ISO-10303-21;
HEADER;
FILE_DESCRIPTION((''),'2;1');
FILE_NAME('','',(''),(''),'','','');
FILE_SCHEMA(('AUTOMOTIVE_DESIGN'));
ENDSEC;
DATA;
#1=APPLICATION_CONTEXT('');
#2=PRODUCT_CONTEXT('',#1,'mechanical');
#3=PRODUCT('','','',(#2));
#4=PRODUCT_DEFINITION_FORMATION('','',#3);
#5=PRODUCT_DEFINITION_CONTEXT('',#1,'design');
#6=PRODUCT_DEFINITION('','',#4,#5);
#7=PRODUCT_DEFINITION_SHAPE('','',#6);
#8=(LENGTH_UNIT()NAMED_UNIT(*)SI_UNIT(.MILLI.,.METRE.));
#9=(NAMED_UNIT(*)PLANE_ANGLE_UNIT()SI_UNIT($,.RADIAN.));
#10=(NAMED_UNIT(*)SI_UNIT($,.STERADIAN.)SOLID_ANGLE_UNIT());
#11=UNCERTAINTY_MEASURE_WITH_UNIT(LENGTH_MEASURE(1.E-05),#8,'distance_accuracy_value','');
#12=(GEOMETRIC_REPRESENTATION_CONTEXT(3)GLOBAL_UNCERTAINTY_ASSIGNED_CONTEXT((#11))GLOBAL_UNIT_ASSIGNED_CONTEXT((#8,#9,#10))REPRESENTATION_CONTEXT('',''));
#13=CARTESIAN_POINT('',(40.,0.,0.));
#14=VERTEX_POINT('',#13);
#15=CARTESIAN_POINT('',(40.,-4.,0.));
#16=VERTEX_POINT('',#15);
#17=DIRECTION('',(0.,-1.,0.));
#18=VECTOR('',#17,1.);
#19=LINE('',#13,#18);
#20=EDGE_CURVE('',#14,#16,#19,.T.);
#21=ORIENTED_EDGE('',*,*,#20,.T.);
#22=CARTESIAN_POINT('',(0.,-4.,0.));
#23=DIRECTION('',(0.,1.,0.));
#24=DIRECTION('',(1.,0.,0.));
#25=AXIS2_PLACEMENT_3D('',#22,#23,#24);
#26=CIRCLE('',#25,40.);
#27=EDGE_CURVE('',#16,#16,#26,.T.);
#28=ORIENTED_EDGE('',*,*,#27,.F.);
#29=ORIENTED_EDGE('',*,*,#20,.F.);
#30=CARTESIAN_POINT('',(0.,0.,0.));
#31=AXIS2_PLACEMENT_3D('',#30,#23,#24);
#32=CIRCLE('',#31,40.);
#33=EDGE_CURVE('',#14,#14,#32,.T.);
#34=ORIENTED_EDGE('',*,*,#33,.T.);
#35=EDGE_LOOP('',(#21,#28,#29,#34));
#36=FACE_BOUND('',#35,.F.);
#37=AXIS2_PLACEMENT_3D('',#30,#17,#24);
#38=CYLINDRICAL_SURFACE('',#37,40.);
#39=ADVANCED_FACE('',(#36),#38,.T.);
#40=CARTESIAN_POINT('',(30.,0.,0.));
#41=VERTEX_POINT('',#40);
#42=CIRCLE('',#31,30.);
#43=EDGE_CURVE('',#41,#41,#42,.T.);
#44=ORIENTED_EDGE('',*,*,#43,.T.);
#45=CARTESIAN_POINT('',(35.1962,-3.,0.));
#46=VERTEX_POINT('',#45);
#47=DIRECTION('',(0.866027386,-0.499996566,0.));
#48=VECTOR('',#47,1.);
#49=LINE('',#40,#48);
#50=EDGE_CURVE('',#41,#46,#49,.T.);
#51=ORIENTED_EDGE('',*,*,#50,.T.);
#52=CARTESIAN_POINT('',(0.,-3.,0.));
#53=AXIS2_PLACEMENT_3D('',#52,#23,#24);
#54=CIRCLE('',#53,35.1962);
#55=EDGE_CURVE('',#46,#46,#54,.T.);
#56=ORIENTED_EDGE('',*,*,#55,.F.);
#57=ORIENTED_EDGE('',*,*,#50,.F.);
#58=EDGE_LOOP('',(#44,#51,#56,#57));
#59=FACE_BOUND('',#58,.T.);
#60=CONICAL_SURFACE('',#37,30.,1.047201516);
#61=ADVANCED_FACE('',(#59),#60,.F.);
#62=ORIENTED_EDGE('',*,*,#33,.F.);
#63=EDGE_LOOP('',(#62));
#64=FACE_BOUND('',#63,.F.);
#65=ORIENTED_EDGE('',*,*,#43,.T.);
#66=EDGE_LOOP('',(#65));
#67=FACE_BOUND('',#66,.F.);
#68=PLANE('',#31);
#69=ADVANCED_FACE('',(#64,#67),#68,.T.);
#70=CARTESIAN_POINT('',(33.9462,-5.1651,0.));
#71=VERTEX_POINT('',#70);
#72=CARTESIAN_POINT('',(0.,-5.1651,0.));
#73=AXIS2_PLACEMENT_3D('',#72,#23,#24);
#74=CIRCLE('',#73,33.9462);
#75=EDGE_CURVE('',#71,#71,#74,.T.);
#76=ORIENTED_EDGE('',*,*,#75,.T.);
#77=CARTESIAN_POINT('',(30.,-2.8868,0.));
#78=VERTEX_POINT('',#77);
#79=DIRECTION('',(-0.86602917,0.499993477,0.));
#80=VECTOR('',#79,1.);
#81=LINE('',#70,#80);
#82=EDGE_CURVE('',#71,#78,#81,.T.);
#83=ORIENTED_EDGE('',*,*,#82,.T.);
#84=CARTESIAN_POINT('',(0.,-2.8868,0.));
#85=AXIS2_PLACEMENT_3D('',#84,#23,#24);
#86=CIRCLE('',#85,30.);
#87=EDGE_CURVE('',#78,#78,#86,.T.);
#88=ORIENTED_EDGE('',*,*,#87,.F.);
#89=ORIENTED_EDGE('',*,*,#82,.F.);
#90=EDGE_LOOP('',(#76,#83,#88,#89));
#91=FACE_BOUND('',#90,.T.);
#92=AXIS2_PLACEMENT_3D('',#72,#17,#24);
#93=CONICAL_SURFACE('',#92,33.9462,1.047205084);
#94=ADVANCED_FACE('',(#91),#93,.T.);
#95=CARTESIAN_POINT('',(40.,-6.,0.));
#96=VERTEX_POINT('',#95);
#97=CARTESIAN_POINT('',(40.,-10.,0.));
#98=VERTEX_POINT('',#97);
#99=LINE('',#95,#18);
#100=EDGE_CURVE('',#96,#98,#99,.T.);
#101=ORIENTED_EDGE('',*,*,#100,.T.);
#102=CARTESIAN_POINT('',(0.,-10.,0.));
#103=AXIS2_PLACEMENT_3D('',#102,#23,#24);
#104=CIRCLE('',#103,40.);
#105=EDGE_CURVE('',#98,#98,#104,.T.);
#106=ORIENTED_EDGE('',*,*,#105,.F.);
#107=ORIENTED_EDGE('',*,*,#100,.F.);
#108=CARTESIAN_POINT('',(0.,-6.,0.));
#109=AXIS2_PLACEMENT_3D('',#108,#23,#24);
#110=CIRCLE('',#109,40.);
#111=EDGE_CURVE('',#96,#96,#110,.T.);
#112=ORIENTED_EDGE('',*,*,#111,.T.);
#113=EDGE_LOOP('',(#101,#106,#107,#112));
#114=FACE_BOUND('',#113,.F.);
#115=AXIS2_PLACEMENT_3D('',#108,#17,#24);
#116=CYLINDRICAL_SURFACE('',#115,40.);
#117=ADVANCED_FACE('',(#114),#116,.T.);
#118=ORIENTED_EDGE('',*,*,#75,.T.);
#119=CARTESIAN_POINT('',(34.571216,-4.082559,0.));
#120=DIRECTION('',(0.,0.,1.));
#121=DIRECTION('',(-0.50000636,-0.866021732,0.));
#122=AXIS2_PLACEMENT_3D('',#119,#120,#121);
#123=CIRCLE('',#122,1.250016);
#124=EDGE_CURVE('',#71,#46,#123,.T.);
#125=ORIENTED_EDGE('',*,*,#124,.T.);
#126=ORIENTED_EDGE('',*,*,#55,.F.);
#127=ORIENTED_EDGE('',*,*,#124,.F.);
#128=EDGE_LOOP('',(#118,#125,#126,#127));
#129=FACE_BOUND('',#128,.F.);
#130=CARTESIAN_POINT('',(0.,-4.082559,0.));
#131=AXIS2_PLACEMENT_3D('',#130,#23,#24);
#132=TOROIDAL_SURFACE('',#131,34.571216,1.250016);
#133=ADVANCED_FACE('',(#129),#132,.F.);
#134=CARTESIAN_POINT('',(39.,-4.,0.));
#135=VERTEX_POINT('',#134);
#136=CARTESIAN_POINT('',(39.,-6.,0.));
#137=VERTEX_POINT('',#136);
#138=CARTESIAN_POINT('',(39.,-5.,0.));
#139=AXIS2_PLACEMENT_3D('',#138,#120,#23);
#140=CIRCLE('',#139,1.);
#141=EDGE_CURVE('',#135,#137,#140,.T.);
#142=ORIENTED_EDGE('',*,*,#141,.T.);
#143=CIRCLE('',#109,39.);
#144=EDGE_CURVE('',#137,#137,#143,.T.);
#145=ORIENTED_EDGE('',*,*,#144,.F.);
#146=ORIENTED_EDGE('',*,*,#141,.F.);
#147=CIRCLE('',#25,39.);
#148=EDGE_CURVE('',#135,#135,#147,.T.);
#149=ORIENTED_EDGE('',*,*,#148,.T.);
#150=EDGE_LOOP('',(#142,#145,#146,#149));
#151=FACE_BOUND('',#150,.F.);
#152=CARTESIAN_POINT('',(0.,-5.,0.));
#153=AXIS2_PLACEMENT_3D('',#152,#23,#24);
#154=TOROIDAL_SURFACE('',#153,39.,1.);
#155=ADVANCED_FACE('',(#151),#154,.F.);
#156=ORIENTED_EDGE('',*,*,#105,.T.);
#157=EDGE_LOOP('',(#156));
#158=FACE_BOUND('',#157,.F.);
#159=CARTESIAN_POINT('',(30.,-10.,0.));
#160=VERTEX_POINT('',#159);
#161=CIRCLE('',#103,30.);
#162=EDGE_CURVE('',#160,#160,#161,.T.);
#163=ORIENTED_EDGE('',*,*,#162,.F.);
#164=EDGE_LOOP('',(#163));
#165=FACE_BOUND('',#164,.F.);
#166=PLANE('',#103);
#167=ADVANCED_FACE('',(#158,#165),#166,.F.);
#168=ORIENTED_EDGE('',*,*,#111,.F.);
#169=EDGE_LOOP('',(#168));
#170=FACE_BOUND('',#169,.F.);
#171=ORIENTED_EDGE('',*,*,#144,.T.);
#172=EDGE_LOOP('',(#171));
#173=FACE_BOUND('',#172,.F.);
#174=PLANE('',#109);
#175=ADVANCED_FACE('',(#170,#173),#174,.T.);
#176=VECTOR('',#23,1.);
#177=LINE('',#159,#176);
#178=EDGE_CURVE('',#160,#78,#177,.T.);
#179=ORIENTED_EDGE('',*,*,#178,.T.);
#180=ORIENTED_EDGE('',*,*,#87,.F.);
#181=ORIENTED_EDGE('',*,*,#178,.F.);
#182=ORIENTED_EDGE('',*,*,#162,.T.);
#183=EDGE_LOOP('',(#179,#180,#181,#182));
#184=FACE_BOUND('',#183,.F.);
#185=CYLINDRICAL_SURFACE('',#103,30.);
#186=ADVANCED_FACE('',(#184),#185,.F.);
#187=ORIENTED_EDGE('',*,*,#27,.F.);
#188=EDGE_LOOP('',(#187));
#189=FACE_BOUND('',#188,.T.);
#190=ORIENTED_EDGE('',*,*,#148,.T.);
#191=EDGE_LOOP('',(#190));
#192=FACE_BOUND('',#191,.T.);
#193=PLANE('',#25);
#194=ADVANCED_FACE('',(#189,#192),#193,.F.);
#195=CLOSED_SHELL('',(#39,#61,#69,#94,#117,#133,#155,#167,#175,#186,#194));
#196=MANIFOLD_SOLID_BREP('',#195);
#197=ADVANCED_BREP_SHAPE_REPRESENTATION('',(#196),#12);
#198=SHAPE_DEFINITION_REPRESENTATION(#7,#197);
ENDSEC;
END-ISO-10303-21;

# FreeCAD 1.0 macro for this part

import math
import FreeCAD as App
import Part
import Sketcher
Q = App.Units.Quantity

doc = App.newDocument("Part")
body = doc.addObject("PartDesign::Body", "Body")

# Sketch on XY plane
sketch1 = body.newObject("Sketcher::SketchObject", "Sketch")
sketch1.AttachmentSupport = (doc.getObject("XY_Plane"), [""])
sketch1.MapMode = "FlatFace"
sketch1.addGeometry(Part.LineSegment(App.Vector(40, 0, 0), App.Vector(30, 0, 0)), False)
sketch1.addGeometry(Part.LineSegment(App.Vector(30, 0, 0), App.Vector(35.2, -3, 0)), False)
sketch1.addGeometry(Part.ArcOfCircle(Part.Circle(App.Vector(34.6, -4.1, 0), App.Vector(0, 0, 1), 1.3), math.radians(-120), math.radians(60)), False)
sketch1.addGeometry(Part.LineSegment(App.Vector(33.9, -5.2, 0), App.Vector(30, -2.9, 0)), False)
sketch1.addGeometry(Part.LineSegment(App.Vector(30, -2.9, 0), App.Vector(30, -10, 0)), False)
sketch1.addGeometry(Part.LineSegment(App.Vector(30, -10, 0), App.Vector(40, -10, 0)), False)
sketch1.addGeometry(Part.LineSegment(App.Vector(40, -10, 0), App.Vector(40, -6, 0)), False)
sketch1.addGeometry(Part.LineSegment(App.Vector(40, -6, 0), App.Vector(39, -6, 0)), False)
sketch1.addGeometry(Part.ArcOfCircle(Part.Circle(App.Vector(39, -5, 0), App.Vector(0, 0, 1), 1), math.radians(90), math.radians(270)), False)
sketch1.addGeometry(Part.LineSegment(App.Vector(39, -4, 0), App.Vector(40, -4, 0)), False)
sketch1.addGeometry(Part.LineSegment(App.Vector(40, -4, 0), App.Vector(40, 0, 0)), False)
sketch1.addConstraint(Sketcher.Constraint("Coincident", 0, 2, 1, 1))
sketch1.addConstraint(Sketcher.Constraint("Tangent", 1, 2, 2, 2))
sketch1.addConstraint(Sketcher.Constraint("Tangent", 2, 1, 3, 1))
sketch1.addConstraint(Sketcher.Constraint("Coincident", 3, 2, 4, 1))
sketch1.addConstraint(Sketcher.Constraint("Coincident", 4, 2, 5, 1))
sketch1.addConstraint(Sketcher.Constraint("Coincident", 5, 2, 6, 1))
sketch1.addConstraint(Sketcher.Constraint("Coincident", 6, 2, 7, 1))
sketch1.addConstraint(Sketcher.Constraint("Tangent", 7, 2, 8, 2))
sketch1.addConstraint(Sketcher.Constraint("Tangent", 8, 1, 9, 1))
sketch1.addConstraint(Sketcher.Constraint("Coincident", 9, 2, 10, 1))
sketch1.addConstraint(Sketcher.Constraint("Coincident", 10, 2, 0, 1))
sketch1.addConstraint(Sketcher.Constraint("Horizontal", 0))
sketch1.addConstraint(Sketcher.Constraint("Vertical", 4))
sketch1.addConstraint(Sketcher.Constraint("Horizontal", 5))
sketch1.addConstraint(Sketcher.Constraint("Vertical", 6))
sketch1.addConstraint(Sketcher.Constraint("Horizontal", 7))
sketch1.addConstraint(Sketcher.Constraint("Horizontal", 9))
sketch1.addConstraint(Sketcher.Constraint("Vertical", 10))
sketch1.addConstraint(Sketcher.Constraint("PointOnObject", 0, 2, -1))
sketch1.addConstraint(Sketcher.Constraint("Parallel", 1, 3))
sketch1.addConstraint(Sketcher.Constraint("Vertical", 0, 2, 3, 2))
sketch1.addConstraint(Sketcher.Constraint("Vertical", 6, 2, 9, 2))
sketch1.addConstraint(Sketcher.Constraint("Equal", 6, 10))
sketch1.addConstraint(Sketcher.Constraint("Radius", 8, 1.0))
sketch1.addConstraint(Sketcher.Constraint("DistanceX", 0, 2, 0, 1, 10.0))
sketch1.addConstraint(Sketcher.Constraint("Angle", 1, Q("-29.9998 deg")))
sketch1.addConstraint(Sketcher.Constraint("Distance", 1, 6.0))
sketch1.addConstraint(Sketcher.Constraint("DistanceX", -1, 1, 0, 2, 30.0))
sketch1.addConstraint(Sketcher.Constraint("DistanceY", 4, 2, -1, 1, 10.0))
sketch1.addConstraint(Sketcher.Constraint("DistanceX", 7, 2, 7, 1, 1.0))
sketch1.addConstraint(Sketcher.Constraint("Radius", 2, 1.25))
revolution = body.newObject("PartDesign::Revolution", "Revolution")
revolution.Profile = sketch1
revolution.ReferenceAxis = (sketch1, ["V_Axis"])
revolution.Angle = 360

doc.recompute()
